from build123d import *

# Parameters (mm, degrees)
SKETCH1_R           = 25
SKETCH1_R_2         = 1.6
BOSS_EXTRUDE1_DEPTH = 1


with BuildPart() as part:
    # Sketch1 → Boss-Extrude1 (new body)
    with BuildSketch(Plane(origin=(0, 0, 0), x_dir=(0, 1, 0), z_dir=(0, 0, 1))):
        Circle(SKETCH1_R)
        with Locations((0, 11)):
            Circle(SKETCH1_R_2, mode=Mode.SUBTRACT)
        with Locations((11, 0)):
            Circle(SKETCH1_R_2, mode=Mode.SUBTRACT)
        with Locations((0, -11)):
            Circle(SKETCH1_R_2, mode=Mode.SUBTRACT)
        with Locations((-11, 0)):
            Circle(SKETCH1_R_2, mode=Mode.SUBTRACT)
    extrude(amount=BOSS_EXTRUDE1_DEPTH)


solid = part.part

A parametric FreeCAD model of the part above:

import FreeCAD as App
import Part
import Sketcher
from FreeCAD import Vector

doc = App.newDocument("Part")
body = doc.addObject("PartDesign::Body", "Body")

# Sketch on XY plane
sketch1 = doc.addObject("Sketcher::SketchObject", "Sketch")
body.addObject(sketch1)
sketch1.AttachmentSupport = (doc.XY_Plane, [""])
sketch1.MapMode = "FlatFace"
sketch1.addGeometry(Part.Circle(Vector(0, 0, 0), Vector(0, 0, 1), 25), False)
sketch1.addGeometry(Part.Circle(Vector(0, -11, 0), Vector(0, 0, 1), 1.6), False)
sketch1.addGeometry(Part.Circle(Vector(11, 0, 0), Vector(0, 0, 1), 1.6), False)
sketch1.addGeometry(Part.Circle(Vector(0, 11, 0), Vector(0, 0, 1), 1.6), False)
sketch1.addGeometry(Part.Circle(Vector(-11, 0, 0), Vector(0, 0, 1), 1.6), False)
sketch1.addConstraint(Sketcher.Constraint("Coincident", 0, 3, -1, 1))
sketch1.addConstraint(Sketcher.Constraint("Equal", 1, 2))
sketch1.addConstraint(Sketcher.Constraint("Equal", 2, 3))
sketch1.addConstraint(Sketcher.Constraint("Equal", 3, 4))
sketch1.addConstraint(Sketcher.Constraint("Symmetric", 1, 3, 3, 3, -1, 1))
sketch1.addConstraint(Sketcher.Constraint("Symmetric", 2, 3, 4, 3, -1, 1))
sketch1.addConstraint(Sketcher.Constraint("PointOnObject", 1, 3, -2))
sketch1.addConstraint(Sketcher.Constraint("PointOnObject", 2, 3, -1))
sketch1.addConstraint(Sketcher.Constraint("Diameter", 0, 50.0))
sketch1.addConstraint(Sketcher.Constraint("Diameter", 1, 3.2))
sketch1.addConstraint(Sketcher.Constraint("DistanceY", 1, 3, -1, 1, 11.0))
sketch1.addConstraint(Sketcher.Constraint("DistanceX", -1, 1, 2, 3, 11.0))
pad1 = doc.addObject("PartDesign::Pad", "Pad")
body.addObject(pad1)
pad1.Profile = sketch1
pad1.Length = 1

doc.recompute()
